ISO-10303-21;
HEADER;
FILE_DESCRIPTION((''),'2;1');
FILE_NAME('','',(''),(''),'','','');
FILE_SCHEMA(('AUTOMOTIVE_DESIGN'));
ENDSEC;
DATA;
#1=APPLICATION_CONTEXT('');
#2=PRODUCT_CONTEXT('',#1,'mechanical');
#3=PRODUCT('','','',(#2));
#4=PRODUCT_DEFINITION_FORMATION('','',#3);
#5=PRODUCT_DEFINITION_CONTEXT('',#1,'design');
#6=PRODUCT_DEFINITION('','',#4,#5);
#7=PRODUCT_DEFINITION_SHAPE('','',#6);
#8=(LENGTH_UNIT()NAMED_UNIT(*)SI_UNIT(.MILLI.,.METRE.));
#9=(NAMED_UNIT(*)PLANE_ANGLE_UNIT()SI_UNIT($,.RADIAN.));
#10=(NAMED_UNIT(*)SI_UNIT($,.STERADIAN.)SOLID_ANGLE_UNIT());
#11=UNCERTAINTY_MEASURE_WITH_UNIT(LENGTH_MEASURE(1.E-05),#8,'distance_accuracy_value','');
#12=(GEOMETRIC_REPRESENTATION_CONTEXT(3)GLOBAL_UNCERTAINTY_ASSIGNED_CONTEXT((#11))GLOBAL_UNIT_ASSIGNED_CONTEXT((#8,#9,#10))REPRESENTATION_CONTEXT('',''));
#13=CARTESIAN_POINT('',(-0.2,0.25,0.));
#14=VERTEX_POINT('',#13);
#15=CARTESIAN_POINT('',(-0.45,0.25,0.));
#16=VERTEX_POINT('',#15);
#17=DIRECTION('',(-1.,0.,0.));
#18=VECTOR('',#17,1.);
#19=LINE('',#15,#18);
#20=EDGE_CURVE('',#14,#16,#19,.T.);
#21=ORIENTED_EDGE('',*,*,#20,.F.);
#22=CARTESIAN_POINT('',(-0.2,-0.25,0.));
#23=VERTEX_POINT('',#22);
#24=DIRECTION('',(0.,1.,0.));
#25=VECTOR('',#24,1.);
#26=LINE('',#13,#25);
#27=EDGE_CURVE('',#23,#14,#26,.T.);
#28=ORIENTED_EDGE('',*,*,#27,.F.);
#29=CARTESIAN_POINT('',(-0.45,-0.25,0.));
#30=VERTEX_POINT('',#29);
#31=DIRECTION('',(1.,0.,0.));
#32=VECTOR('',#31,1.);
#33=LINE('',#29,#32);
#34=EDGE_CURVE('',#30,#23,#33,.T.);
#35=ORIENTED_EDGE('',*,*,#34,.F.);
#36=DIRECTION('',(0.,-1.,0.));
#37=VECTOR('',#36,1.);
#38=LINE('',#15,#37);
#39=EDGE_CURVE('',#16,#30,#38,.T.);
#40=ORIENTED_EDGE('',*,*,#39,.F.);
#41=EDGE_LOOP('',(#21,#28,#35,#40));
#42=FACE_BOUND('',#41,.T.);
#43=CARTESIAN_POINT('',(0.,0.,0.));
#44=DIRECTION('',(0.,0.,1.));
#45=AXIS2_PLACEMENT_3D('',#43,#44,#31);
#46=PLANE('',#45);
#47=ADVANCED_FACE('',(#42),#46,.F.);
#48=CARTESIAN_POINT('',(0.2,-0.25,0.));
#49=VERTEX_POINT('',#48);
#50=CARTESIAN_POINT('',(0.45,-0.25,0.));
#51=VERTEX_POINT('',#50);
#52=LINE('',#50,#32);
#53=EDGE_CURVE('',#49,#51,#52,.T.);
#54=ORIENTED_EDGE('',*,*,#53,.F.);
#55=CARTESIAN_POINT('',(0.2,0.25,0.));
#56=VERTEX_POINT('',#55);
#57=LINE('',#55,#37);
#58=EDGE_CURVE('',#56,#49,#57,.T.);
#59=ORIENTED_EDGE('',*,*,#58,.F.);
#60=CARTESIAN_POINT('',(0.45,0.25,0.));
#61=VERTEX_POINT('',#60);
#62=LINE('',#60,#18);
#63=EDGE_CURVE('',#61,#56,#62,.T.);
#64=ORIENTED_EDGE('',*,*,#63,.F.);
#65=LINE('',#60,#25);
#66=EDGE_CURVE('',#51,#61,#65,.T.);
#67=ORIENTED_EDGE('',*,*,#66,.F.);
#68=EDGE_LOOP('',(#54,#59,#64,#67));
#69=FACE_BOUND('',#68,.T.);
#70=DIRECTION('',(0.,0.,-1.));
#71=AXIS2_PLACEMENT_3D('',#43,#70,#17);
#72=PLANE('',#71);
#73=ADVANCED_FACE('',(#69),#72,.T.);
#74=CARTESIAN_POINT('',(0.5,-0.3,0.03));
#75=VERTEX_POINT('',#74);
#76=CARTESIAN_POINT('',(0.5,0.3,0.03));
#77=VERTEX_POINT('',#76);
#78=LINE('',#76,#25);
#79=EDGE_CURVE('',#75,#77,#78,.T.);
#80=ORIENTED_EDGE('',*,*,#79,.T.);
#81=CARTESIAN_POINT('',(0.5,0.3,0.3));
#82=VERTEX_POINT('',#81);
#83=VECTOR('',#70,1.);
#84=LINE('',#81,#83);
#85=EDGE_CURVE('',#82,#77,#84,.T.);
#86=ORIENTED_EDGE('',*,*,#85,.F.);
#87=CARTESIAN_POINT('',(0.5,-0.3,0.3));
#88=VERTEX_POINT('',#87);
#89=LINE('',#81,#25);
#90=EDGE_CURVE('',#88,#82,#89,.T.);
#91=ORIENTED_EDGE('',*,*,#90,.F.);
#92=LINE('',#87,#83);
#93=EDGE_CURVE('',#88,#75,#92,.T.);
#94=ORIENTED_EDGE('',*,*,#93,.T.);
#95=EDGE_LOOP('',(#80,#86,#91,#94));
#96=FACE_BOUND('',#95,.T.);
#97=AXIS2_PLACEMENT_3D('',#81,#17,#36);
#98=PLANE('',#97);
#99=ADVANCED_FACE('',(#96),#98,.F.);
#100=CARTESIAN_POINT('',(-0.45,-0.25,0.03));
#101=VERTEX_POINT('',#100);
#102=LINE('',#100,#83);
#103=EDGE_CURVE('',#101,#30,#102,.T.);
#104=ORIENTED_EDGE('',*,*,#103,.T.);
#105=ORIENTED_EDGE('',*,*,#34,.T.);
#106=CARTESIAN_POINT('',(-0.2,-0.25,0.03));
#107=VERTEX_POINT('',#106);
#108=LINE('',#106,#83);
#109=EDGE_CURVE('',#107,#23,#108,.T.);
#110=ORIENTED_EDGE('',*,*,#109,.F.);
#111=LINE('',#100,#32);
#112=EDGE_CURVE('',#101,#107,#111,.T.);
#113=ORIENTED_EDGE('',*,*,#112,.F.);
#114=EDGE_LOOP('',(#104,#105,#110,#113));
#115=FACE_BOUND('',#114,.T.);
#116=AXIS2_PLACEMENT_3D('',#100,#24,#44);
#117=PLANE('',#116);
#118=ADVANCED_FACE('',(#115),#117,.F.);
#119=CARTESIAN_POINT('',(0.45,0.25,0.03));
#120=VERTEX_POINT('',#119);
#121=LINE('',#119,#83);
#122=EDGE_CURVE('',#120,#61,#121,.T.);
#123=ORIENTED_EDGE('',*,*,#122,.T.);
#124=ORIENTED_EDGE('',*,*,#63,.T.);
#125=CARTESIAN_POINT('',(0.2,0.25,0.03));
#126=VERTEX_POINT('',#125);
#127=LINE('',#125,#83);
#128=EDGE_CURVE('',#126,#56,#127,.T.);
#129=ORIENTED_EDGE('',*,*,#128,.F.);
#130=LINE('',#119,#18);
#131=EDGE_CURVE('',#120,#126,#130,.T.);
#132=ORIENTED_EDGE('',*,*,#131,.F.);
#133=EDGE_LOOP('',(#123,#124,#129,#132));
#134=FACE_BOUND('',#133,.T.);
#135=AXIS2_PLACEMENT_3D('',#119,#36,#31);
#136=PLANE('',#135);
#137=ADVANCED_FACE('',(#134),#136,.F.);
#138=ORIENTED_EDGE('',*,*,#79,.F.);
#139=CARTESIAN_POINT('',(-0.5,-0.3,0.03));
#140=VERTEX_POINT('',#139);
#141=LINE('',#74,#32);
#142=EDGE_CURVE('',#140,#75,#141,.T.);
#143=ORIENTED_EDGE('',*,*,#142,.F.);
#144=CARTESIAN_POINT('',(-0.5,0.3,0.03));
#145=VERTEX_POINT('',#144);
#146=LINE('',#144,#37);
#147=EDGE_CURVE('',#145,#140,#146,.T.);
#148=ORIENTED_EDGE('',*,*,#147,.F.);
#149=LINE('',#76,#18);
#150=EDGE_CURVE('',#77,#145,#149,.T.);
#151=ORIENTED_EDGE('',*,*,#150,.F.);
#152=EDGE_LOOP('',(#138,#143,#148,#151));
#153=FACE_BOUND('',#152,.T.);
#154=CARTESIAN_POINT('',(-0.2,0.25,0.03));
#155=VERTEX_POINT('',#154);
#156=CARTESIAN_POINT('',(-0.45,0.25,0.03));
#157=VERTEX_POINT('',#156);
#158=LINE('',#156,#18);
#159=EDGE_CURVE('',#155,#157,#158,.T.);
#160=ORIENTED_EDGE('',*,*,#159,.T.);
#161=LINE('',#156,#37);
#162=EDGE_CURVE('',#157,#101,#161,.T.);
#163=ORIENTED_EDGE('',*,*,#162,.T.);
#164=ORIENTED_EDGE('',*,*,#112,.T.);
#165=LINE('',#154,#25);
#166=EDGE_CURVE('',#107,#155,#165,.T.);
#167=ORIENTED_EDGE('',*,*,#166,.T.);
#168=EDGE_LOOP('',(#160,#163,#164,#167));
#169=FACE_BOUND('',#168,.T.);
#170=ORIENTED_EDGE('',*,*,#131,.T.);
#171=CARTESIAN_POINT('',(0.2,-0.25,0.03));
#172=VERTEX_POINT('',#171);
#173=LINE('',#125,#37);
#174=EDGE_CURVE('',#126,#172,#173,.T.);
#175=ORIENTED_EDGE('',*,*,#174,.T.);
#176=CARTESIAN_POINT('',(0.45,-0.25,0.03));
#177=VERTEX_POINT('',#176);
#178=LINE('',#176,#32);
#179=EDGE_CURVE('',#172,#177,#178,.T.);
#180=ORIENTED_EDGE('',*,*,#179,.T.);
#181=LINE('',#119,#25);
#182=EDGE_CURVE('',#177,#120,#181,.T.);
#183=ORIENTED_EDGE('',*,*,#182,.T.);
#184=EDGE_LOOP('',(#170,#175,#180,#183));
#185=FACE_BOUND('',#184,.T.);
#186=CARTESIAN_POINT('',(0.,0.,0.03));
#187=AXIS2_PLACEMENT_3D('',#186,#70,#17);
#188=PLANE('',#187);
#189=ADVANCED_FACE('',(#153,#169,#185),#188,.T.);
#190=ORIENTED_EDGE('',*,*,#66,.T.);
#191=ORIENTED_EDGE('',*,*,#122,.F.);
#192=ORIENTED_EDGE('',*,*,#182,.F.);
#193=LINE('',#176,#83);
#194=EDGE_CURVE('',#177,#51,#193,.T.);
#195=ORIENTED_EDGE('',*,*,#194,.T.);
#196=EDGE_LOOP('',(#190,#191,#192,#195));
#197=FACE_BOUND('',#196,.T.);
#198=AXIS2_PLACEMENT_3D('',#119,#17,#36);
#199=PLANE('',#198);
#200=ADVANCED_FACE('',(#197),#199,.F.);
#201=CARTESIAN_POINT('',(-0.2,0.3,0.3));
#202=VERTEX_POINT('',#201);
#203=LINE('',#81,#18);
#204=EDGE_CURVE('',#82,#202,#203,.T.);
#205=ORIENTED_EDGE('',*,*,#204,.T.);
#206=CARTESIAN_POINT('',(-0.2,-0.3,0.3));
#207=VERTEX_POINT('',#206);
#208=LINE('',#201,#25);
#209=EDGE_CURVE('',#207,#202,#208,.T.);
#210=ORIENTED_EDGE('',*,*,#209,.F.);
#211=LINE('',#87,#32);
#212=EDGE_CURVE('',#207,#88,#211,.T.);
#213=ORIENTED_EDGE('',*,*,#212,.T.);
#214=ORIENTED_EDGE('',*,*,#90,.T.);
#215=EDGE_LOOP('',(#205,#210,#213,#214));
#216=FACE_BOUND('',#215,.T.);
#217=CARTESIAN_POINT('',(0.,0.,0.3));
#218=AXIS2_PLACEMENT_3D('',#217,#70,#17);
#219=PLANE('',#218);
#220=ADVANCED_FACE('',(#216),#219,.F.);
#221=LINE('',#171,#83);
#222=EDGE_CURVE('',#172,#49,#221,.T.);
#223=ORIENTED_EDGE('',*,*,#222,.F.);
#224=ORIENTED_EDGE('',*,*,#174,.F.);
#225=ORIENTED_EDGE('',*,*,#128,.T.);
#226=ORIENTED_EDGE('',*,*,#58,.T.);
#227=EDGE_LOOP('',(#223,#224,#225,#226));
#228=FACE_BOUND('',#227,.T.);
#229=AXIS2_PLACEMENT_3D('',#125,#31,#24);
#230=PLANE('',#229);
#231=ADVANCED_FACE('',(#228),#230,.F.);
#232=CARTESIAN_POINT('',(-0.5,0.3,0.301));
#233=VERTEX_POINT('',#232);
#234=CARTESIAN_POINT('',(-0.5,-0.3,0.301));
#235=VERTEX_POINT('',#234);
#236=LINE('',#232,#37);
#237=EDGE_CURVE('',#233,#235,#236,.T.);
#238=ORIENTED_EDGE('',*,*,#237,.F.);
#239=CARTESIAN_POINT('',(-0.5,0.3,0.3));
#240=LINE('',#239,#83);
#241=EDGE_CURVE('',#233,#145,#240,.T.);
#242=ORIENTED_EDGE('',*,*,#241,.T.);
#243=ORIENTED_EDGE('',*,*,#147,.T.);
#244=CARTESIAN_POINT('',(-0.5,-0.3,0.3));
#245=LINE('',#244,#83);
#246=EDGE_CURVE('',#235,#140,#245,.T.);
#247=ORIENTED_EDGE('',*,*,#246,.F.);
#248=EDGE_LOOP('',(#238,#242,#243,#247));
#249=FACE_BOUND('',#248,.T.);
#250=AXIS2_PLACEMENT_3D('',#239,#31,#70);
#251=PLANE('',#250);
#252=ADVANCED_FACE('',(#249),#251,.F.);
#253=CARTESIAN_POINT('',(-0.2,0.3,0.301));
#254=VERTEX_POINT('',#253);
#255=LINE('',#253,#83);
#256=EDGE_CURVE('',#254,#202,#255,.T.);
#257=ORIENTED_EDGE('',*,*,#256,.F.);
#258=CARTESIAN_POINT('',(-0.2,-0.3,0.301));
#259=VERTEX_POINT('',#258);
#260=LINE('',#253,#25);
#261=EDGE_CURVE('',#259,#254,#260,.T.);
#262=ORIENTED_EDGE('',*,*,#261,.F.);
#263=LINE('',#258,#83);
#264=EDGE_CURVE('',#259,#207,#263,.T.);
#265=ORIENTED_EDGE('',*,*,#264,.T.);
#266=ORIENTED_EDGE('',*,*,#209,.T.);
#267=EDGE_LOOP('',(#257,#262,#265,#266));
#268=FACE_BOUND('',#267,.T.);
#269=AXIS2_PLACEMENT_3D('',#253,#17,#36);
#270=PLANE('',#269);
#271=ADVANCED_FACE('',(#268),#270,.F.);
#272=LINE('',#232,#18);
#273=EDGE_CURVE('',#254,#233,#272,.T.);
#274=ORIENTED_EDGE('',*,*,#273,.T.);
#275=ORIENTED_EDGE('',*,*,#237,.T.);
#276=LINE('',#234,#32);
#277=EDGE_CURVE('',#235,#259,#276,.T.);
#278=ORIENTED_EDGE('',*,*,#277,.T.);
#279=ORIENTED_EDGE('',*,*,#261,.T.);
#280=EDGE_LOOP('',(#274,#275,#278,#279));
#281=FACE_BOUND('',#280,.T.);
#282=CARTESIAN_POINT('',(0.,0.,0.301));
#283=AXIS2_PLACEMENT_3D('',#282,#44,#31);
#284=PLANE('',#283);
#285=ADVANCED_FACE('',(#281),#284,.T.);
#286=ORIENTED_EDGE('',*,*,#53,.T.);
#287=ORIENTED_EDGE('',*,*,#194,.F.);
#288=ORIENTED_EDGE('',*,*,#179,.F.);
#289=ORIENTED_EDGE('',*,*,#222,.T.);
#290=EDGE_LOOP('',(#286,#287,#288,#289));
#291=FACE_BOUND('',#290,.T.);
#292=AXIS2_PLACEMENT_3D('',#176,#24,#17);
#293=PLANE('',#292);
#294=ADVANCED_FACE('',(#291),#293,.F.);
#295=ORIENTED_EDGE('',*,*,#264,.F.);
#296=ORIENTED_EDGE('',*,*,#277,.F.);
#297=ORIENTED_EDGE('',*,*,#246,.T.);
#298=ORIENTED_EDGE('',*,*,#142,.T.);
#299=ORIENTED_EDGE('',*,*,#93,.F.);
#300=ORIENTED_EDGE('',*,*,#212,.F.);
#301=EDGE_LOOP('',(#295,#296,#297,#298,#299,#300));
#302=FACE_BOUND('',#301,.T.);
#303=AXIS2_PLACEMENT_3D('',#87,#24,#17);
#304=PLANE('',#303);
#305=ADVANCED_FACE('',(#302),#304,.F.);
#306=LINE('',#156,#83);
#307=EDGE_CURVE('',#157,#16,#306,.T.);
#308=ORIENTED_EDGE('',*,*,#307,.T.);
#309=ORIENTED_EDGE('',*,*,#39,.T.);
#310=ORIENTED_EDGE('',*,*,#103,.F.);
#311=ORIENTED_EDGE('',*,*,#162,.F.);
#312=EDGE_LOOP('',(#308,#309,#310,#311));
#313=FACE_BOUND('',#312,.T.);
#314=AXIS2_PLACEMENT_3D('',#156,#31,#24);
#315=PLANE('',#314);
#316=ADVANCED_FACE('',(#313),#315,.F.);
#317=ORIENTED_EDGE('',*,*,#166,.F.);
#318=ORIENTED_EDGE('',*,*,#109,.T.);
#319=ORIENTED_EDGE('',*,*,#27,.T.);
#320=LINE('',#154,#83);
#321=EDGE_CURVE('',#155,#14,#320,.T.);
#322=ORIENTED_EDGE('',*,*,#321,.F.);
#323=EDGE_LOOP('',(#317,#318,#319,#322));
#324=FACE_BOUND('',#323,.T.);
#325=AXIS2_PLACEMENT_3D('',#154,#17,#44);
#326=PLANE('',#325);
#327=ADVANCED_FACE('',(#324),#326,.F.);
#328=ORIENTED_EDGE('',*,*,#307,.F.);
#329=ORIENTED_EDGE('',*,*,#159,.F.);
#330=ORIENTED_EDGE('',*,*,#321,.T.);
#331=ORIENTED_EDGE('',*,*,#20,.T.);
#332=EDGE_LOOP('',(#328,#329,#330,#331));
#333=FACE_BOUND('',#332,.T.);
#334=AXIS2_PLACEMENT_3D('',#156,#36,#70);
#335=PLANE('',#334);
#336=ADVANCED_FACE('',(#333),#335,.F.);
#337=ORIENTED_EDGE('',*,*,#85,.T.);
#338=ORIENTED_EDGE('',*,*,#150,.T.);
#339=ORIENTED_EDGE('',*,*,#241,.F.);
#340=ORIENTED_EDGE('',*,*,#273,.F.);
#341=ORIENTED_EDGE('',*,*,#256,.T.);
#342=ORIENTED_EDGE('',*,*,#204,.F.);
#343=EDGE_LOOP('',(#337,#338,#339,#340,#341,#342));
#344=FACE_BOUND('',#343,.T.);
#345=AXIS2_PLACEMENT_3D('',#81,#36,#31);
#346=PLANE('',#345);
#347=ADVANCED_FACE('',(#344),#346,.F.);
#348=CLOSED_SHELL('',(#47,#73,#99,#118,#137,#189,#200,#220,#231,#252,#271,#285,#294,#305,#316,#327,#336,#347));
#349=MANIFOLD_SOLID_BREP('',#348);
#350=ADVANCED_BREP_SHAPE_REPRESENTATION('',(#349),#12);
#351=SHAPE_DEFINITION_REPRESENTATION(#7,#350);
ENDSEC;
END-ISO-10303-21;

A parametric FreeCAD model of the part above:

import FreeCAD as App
import Part
import Sketcher
from FreeCAD import Vector
Q = App.Units.Quantity

doc = App.newDocument("Part")
body = doc.addObject("PartDesign::Body", "Body")

# Sketch on XY plane
sketch1 = body.newObject("Sketcher::SketchObject", "Sketch")
sketch1.AttachmentSupport = (doc.getObject("XY_Plane"), [""])
sketch1.MapMode = "FlatFace"
sketch1.addGeometry(Part.LineSegment(Vector(-0.45, 0.25, 0), Vector(-0.45, -0.25, 0)), False)
sketch1.addGeometry(Part.LineSegment(Vector(-0.45, -0.25, 0), Vector(-0.2, -0.25, 0)), False)
sketch1.addGeometry(Part.LineSegment(Vector(-0.2, -0.25, 0), Vector(-0.2, 0.25, 0)), False)
sketch1.addGeometry(Part.LineSegment(Vector(-0.2, 0.25, 0), Vector(-0.45, 0.25, 0)), False)
sketch1.addConstraint(Sketcher.Constraint("Coincident", 0, 2, 1, 1))
sketch1.addConstraint(Sketcher.Constraint("Coincident", 1, 2, 2, 1))
sketch1.addConstraint(Sketcher.Constraint("Coincident", 2, 2, 3, 1))
sketch1.addConstraint(Sketcher.Constraint("Coincident", 3, 2, 0, 1))
sketch1.addConstraint(Sketcher.Constraint("Vertical", 0))
sketch1.addConstraint(Sketcher.Constraint("Horizontal", 1))
sketch1.addConstraint(Sketcher.Constraint("Vertical", 2))
sketch1.addConstraint(Sketcher.Constraint("Horizontal", 3))
sketch1.addConstraint(Sketcher.Constraint("DistanceY", 0, 2, 0, 1, Q("0.5 mm")))
sketch1.addConstraint(Sketcher.Constraint("DistanceX", 1, 1, 1, 2, Q("0.25 mm")))
sketch1.addConstraint(Sketcher.Constraint("DistanceX", 1, 2, -1, 1, Q("0.2 mm")))
sketch1.addConstraint(Sketcher.Constraint("DistanceY", 0, 2, -1, 1, Q("0.25 mm")))
pad1 = body.newObject("PartDesign::Pad", "Pad")
pad1.Profile = sketch1
pad1.Length = 0.03
body2 = doc.addObject("PartDesign::Body", "Body001")

# Sketch on XY plane
sketch2 = body2.newObject("Sketcher::SketchObject", "Sketch001")
sketch2.AttachmentSupport = (doc.getObject("XY_Plane001"), [""])
sketch2.MapMode = "FlatFace"
sketch2.addGeometry(Part.LineSegment(Vector(0.2, 0.25, 0), Vector(0.2, -0.25, 0)), False)
sketch2.addGeometry(Part.LineSegment(Vector(0.2, -0.25, 0), Vector(0.45, -0.25, 0)), False)
sketch2.addGeometry(Part.LineSegment(Vector(0.45, -0.25, 0), Vector(0.45, 0.25, 0)), False)
sketch2.addGeometry(Part.LineSegment(Vector(0.45, 0.25, 0), Vector(0.2, 0.25, 0)), False)
sketch2.addConstraint(Sketcher.Constraint("Coincident", 0, 2, 1, 1))
sketch2.addConstraint(Sketcher.Constraint("Coincident", 1, 2, 2, 1))
sketch2.addConstraint(Sketcher.Constraint("Coincident", 2, 2, 3, 1))
sketch2.addConstraint(Sketcher.Constraint("Coincident", 3, 2, 0, 1))
sketch2.addConstraint(Sketcher.Constraint("Vertical", 0))
sketch2.addConstraint(Sketcher.Constraint("Horizontal", 1))
sketch2.addConstraint(Sketcher.Constraint("Vertical", 2))
sketch2.addConstraint(Sketcher.Constraint("Horizontal", 3))
sketch2.addConstraint(Sketcher.Constraint("DistanceY", 0, 2, 0, 1, Q("0.5 mm")))
sketch2.addConstraint(Sketcher.Constraint("DistanceX", 1, 1, 1, 2, Q("0.25 mm")))
sketch2.addConstraint(Sketcher.Constraint("DistanceX", -1, 1, 0, 2, Q("0.2 mm")))
sketch2.addConstraint(Sketcher.Constraint("DistanceY", 0, 2, -1, 1, Q("0.25 mm")))
pad2 = body2.newObject("PartDesign::Pad", "Pad001")
pad2.Profile = sketch2
pad2.Length = 0.03
body.AllowCompound = True
doc.recompute()

boolean = body.newObject("PartDesign::Boolean", "Boolean")
boolean.Type = "Fuse"
boolean.addObjects([body2])

# Sketch on XY plane
sketch3 = body.newObject("Sketcher::SketchObject", "Sketch002")
sketch3.AttachmentSupport = (doc.getObject("XY_Plane"), [""])
sketch3.MapMode = "FlatFace"
sketch3.AttachmentOffset = App.Placement(Vector(0, 0, 0.03), App.Rotation())
sketch3.addGeometry(Part.LineSegment(Vector(-0.5, 0.3, 0), Vector(-0.5, -0.3, 0)), False)
sketch3.addGeometry(Part.LineSegment(Vector(-0.5, -0.3, 0), Vector(0.5, -0.3, 0)), False)
sketch3.addGeometry(Part.LineSegment(Vector(0.5, -0.3, 0), Vector(0.5, 0.3, 0)), False)
sketch3.addGeometry(Part.LineSegment(Vector(0.5, 0.3, 0), Vector(-0.5, 0.3, 0)), False)
sketch3.addConstraint(Sketcher.Constraint("Coincident", 0, 2, 1, 1))
sketch3.addConstraint(Sketcher.Constraint("Coincident", 1, 2, 2, 1))
sketch3.addConstraint(Sketcher.Constraint("Coincident", 2, 2, 3, 1))
sketch3.addConstraint(Sketcher.Constraint("Coincident", 3, 2, 0, 1))
sketch3.addConstraint(Sketcher.Constraint("Vertical", 0))
sketch3.addConstraint(Sketcher.Constraint("Horizontal", 1))
sketch3.addConstraint(Sketcher.Constraint("Vertical", 2))
sketch3.addConstraint(Sketcher.Constraint("Horizontal", 3))
sketch3.addConstraint(Sketcher.Constraint("Symmetric", 0, 2, 2, 2, -1, 1))
sketch3.addConstraint(Sketcher.Constraint("DistanceX", 1, 1, 1, 2, Q("1 mm")))
sketch3.addConstraint(Sketcher.Constraint("DistanceY", 0, 2, 0, 1, Q("0.6 mm")))
pad3 = body.newObject("PartDesign::Pad", "Pad002")
pad3.Profile = sketch3
pad3.Length = 0.27

# Sketch on XY plane
sketch4 = body.newObject("Sketcher::SketchObject", "Sketch003")
sketch4.AttachmentSupport = (doc.getObject("XY_Plane"), [""])
sketch4.MapMode = "FlatFace"
sketch4.AttachmentOffset = App.Placement(Vector(0, 0, 0.3), App.Rotation())
sketch4.addGeometry(Part.LineSegment(Vector(-0.5, 0.3, 0), Vector(-0.5, -0.3, 0)), False)
sketch4.addGeometry(Part.LineSegment(Vector(-0.5, -0.3, 0), Vector(-0.2, -0.3, 0)), False)
sketch4.addGeometry(Part.LineSegment(Vector(-0.2, -0.3, 0), Vector(-0.2, 0.3, 0)), False)
sketch4.addGeometry(Part.LineSegment(Vector(-0.2, 0.3, 0), Vector(-0.5, 0.3, 0)), False)
sketch4.addConstraint(Sketcher.Constraint("Coincident", 0, 2, 1, 1))
sketch4.addConstraint(Sketcher.Constraint("Coincident", 1, 2, 2, 1))
sketch4.addConstraint(Sketcher.Constraint("Coincident", 2, 2, 3, 1))
sketch4.addConstraint(Sketcher.Constraint("Coincident", 3, 2, 0, 1))
sketch4.addConstraint(Sketcher.Constraint("Vertical", 0))
sketch4.addConstraint(Sketcher.Constraint("Horizontal", 1))
sketch4.addConstraint(Sketcher.Constraint("Vertical", 2))
sketch4.addConstraint(Sketcher.Constraint("Horizontal", 3))
sketch4.addConstraint(Sketcher.Constraint("DistanceX", 1, 1, 1, 2, Q("0.3 mm")))
sketch4.addConstraint(Sketcher.Constraint("DistanceY", 0, 2, 0, 1, Q("0.6 mm")))
sketch4.addConstraint(Sketcher.Constraint("DistanceX", 0, 2, -1, 1, Q("0.5 mm")))
sketch4.addConstraint(Sketcher.Constraint("DistanceY", 0, 2, -1, 1, Q("0.3 mm")))
pad4 = body.newObject("PartDesign::Pad", "Pad003")
pad4.Profile = sketch4
pad4.Length = 0.001

doc.recompute()
